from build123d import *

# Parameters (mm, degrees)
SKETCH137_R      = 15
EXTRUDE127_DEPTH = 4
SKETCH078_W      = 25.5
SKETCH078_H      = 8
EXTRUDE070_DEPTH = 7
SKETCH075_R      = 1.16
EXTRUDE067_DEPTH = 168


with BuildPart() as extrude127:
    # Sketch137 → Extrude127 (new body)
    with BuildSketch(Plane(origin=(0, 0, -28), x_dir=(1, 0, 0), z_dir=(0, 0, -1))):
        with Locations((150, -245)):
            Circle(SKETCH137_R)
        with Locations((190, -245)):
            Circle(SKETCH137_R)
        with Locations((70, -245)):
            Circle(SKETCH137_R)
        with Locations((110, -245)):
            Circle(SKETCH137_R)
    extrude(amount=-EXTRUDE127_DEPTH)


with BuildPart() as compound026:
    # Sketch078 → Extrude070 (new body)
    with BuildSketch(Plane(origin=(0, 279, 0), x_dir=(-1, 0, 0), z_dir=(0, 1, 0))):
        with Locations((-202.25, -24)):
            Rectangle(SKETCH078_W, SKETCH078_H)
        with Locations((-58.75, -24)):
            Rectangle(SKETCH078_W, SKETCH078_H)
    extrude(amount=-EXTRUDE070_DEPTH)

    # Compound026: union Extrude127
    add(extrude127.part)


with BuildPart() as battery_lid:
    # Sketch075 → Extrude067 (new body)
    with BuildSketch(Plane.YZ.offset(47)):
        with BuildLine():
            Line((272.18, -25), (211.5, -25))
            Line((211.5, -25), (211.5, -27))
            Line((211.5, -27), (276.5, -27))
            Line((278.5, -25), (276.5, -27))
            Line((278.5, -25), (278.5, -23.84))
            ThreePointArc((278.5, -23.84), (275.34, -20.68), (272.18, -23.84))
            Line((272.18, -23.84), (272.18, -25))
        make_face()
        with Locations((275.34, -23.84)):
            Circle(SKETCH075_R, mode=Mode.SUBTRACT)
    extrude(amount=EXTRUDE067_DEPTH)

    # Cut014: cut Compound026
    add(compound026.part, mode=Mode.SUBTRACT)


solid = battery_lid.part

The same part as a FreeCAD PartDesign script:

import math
import FreeCAD as App
import Part
import Sketcher
from FreeCAD import Vector
Q = App.Units.Quantity

doc = App.newDocument("Part")
body = doc.addObject("PartDesign::Body", "Body")
body.AllowCompound = True

sketch1 = body.newObject("Sketcher::SketchObject", "Sketch")
sketch1.AttachmentSupport = (doc.getObject("XY_Plane"), [""])
sketch1.MapMode = "FlatFace"
sketch1.AttachmentOffset = App.Placement(Vector(0, 0, -28), App.Rotation())
sketch1.addGeometry([
    Part.Circle(Vector(150, 245, 0), Vector(0, 0, 1), 15),
    Part.Circle(Vector(190, 245, 0), Vector(0, 0, 1), 15),
    Part.Circle(Vector(70, 245, 0), Vector(0, 0, 1), 15),
    Part.Circle(Vector(110, 245, 0), Vector(0, 0, 1), 15),
], False)
sketch1.addConstraint([
    Sketcher.Constraint("Equal", 0, 1),
    Sketcher.Constraint("Equal", 1, 2),
    Sketcher.Constraint("Equal", 2, 3),
    Sketcher.Constraint("Horizontal", 0, 3, 1, 3),
    Sketcher.Constraint("Horizontal", 1, 3, 2, 3),
    Sketcher.Constraint("Horizontal", 2, 3, 3, 3),
    Sketcher.Constraint("Diameter", 0, 30.0),
    Sketcher.Constraint("DistanceX", -1, 1, 0, 3, 150.0),
    Sketcher.Constraint("DistanceY", -1, 1, 0, 3, 245.0),
    Sketcher.Constraint("DistanceX", -1, 1, 1, 3, 190.0),
    Sketcher.Constraint("DistanceX", -1, 1, 2, 3, 70.0),
    Sketcher.Constraint("DistanceX", -1, 1, 3, 3, 110.0),
])
pad1 = body.newObject("PartDesign::Pad", "Pad")
pad1.Profile = sketch1
pad1.Length = 4
body2 = doc.addObject("PartDesign::Body", "Body001")
body2.AllowCompound = True

sketch2 = body2.newObject("Sketcher::SketchObject", "Sketch001")
sketch2.AttachmentSupport = (doc.getObject("XZ_Plane001"), [""])
sketch2.MapMode = "FlatFace"
sketch2.AttachmentOffset = App.Placement(Vector(0, 0, -279), App.Rotation())
sketch2.addGeometry([
    Part.LineSegment(Vector(215, -20, 0), Vector(215, -28, 0)),
    Part.LineSegment(Vector(215, -28, 0), Vector(189.5, -28, 0)),
    Part.LineSegment(Vector(189.5, -28, 0), Vector(189.5, -20, 0)),
    Part.LineSegment(Vector(189.5, -20, 0), Vector(215, -20, 0)),
    Part.LineSegment(Vector(71.5, -20, 0), Vector(71.5, -28, 0)),
    Part.LineSegment(Vector(71.5, -28, 0), Vector(46, -28, 0)),
    Part.LineSegment(Vector(46, -28, 0), Vector(46, -20, 0)),
    Part.LineSegment(Vector(46, -20, 0), Vector(71.5, -20, 0)),
], False)
sketch2.addConstraint([
    Sketcher.Constraint("Coincident", 0, 2, 1, 1),
    Sketcher.Constraint("Coincident", 1, 2, 2, 1),
    Sketcher.Constraint("Coincident", 2, 2, 3, 1),
    Sketcher.Constraint("Coincident", 3, 2, 0, 1),
    Sketcher.Constraint("Coincident", 4, 2, 5, 1),
    Sketcher.Constraint("Coincident", 5, 2, 6, 1),
    Sketcher.Constraint("Coincident", 6, 2, 7, 1),
    Sketcher.Constraint("Coincident", 7, 2, 4, 1),
    Sketcher.Constraint("Vertical", 0),
    Sketcher.Constraint("Horizontal", 1),
    Sketcher.Constraint("Vertical", 2),
    Sketcher.Constraint("Horizontal", 3),
    Sketcher.Constraint("Vertical", 4),
    Sketcher.Constraint("Horizontal", 5),
    Sketcher.Constraint("Vertical", 6),
    Sketcher.Constraint("Horizontal", 7),
    Sketcher.Constraint("Horizontal", 1, 2, 4, 2),
    Sketcher.Constraint("Horizontal", 3, 2, 6, 2),
    Sketcher.Constraint("Equal", 3, 5),
    Sketcher.Constraint("DistanceY", 0, 2, 0, 1, 8.0),
    Sketcher.Constraint("DistanceX", 1, 2, 1, 1, 25.5),
    Sketcher.Constraint("DistanceX", -1, 1, 0, 2, 215.0),
    Sketcher.Constraint("DistanceY", 0, 2, -1, 1, 28.0),
    Sketcher.Constraint("DistanceX", -1, 1, 5, 2, 46.0),
])
pad2 = body2.newObject("PartDesign::Pad", "Pad001")
pad2.Profile = sketch2
pad2.Length = 7
doc.recompute()

boolean = body2.newObject("PartDesign::Boolean", "Boolean")
boolean.Type = "Fuse"
boolean.addObjects([body])
body3 = doc.addObject("PartDesign::Body", "Body002")

sketch3 = body3.newObject("Sketcher::SketchObject", "Sketch002")
sketch3.AttachmentSupport = (doc.getObject("YZ_Plane002"), [""])
sketch3.MapMode = "FlatFace"
sketch3.AttachmentOffset = App.Placement(Vector(0, 0, 47), App.Rotation())
sketch3.addGeometry([
    Part.LineSegment(Vector(272.18, -25, 0), Vector(211.5, -25, 0)),
    Part.LineSegment(Vector(211.5, -25, 0), Vector(211.5, -27, 0)),
    Part.LineSegment(Vector(211.5, -27, 0), Vector(276.5, -27, 0)),
    Part.LineSegment(Vector(276.5, -27, 0), Vector(278.5, -25, 0)),
    Part.LineSegment(Vector(278.5, -25, 0), Vector(278.5, -23.84, 0)),
    Part.ArcOfCircle(Part.Circle(Vector(275.34, -23.84, 0), Vector(0, 0, 1), 3.16), math.radians(0), math.radians(180)),
    Part.LineSegment(Vector(272.18, -23.84, 0), Vector(272.18, -25, 0)),
    Part.Circle(Vector(275.34, -23.84, 0), Vector(0, 0, 1), 1.16),
], False)
sketch3.addConstraint([
    Sketcher.Constraint("Coincident", 0, 2, 1, 1),
    Sketcher.Constraint("Coincident", 1, 2, 2, 1),
    Sketcher.Constraint("Coincident", 2, 2, 3, 1),
    Sketcher.Constraint("Coincident", 3, 2, 4, 1),
    Sketcher.Constraint("Tangent", 4, 2, 5, 1),
    Sketcher.Constraint("Tangent", 5, 2, 6, 1),
    Sketcher.Constraint("Coincident", 6, 2, 0, 1),
    Sketcher.Constraint("Horizontal", 0),
    Sketcher.Constraint("Vertical", 1),
    Sketcher.Constraint("Horizontal", 2),
    Sketcher.Constraint("Vertical", 4),
    Sketcher.Constraint("Vertical", 6),
    Sketcher.Constraint("Coincident", 7, 3, 5, 3),
    Sketcher.Constraint("Horizontal", 0, 2, 3, 2),
    Sketcher.Constraint("Diameter", 7, 2.32),
    Sketcher.Constraint("DistanceX", 2, 1, 2, 2, 65.0),
    Sketcher.Constraint("DistanceY", 1, 2, 1, 1, 2.0),
    Sketcher.Constraint("Angle", 3, Q("45 deg")),
    Sketcher.Constraint("Radius", 5, 3.16),
    Sketcher.Constraint("DistanceY", 0, 2, -1, 1, 25.0),
    Sketcher.Constraint("DistanceY", 4, 1, 4, 2, 1.16),
    Sketcher.Constraint("DistanceX", -1, 1, 0, 2, 211.5),
])
pad3 = body3.newObject("PartDesign::Pad", "Pad002")
pad3.Profile = sketch3
pad3.Length = 168
doc.recompute()

boolean2 = body3.newObject("PartDesign::Boolean", "Boolean001")
boolean2.Type = "Cut"
boolean2.addObjects([body2])

doc.recompute()
